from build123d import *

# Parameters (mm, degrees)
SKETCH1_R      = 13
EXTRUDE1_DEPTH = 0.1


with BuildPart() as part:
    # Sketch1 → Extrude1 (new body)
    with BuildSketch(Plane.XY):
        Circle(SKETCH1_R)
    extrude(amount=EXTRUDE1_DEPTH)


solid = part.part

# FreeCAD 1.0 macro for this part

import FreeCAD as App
import Part
import Sketcher

doc = App.newDocument("Part")
body = doc.addObject("PartDesign::Body", "Body")

# Sketch on XY plane
sketch1 = body.newObject("Sketcher::SketchObject", "Sketch")
sketch1.AttachmentSupport = (doc.getObject("XY_Plane"), [""])
sketch1.MapMode = "FlatFace"
sketch1.addGeometry(Part.Circle(App.Vector(0, 0, 0), App.Vector(0, 0, 1), 13), False)
sketch1.addConstraint([
    Sketcher.Constraint("Coincident", 0, 3, -1, 1),
    Sketcher.Constraint("Diameter", 0, 26.0),
])
pad1 = body.newObject("PartDesign::Pad", "Pad")
pad1.Profile = sketch1
pad1.Length = 0.1

doc.recompute()
